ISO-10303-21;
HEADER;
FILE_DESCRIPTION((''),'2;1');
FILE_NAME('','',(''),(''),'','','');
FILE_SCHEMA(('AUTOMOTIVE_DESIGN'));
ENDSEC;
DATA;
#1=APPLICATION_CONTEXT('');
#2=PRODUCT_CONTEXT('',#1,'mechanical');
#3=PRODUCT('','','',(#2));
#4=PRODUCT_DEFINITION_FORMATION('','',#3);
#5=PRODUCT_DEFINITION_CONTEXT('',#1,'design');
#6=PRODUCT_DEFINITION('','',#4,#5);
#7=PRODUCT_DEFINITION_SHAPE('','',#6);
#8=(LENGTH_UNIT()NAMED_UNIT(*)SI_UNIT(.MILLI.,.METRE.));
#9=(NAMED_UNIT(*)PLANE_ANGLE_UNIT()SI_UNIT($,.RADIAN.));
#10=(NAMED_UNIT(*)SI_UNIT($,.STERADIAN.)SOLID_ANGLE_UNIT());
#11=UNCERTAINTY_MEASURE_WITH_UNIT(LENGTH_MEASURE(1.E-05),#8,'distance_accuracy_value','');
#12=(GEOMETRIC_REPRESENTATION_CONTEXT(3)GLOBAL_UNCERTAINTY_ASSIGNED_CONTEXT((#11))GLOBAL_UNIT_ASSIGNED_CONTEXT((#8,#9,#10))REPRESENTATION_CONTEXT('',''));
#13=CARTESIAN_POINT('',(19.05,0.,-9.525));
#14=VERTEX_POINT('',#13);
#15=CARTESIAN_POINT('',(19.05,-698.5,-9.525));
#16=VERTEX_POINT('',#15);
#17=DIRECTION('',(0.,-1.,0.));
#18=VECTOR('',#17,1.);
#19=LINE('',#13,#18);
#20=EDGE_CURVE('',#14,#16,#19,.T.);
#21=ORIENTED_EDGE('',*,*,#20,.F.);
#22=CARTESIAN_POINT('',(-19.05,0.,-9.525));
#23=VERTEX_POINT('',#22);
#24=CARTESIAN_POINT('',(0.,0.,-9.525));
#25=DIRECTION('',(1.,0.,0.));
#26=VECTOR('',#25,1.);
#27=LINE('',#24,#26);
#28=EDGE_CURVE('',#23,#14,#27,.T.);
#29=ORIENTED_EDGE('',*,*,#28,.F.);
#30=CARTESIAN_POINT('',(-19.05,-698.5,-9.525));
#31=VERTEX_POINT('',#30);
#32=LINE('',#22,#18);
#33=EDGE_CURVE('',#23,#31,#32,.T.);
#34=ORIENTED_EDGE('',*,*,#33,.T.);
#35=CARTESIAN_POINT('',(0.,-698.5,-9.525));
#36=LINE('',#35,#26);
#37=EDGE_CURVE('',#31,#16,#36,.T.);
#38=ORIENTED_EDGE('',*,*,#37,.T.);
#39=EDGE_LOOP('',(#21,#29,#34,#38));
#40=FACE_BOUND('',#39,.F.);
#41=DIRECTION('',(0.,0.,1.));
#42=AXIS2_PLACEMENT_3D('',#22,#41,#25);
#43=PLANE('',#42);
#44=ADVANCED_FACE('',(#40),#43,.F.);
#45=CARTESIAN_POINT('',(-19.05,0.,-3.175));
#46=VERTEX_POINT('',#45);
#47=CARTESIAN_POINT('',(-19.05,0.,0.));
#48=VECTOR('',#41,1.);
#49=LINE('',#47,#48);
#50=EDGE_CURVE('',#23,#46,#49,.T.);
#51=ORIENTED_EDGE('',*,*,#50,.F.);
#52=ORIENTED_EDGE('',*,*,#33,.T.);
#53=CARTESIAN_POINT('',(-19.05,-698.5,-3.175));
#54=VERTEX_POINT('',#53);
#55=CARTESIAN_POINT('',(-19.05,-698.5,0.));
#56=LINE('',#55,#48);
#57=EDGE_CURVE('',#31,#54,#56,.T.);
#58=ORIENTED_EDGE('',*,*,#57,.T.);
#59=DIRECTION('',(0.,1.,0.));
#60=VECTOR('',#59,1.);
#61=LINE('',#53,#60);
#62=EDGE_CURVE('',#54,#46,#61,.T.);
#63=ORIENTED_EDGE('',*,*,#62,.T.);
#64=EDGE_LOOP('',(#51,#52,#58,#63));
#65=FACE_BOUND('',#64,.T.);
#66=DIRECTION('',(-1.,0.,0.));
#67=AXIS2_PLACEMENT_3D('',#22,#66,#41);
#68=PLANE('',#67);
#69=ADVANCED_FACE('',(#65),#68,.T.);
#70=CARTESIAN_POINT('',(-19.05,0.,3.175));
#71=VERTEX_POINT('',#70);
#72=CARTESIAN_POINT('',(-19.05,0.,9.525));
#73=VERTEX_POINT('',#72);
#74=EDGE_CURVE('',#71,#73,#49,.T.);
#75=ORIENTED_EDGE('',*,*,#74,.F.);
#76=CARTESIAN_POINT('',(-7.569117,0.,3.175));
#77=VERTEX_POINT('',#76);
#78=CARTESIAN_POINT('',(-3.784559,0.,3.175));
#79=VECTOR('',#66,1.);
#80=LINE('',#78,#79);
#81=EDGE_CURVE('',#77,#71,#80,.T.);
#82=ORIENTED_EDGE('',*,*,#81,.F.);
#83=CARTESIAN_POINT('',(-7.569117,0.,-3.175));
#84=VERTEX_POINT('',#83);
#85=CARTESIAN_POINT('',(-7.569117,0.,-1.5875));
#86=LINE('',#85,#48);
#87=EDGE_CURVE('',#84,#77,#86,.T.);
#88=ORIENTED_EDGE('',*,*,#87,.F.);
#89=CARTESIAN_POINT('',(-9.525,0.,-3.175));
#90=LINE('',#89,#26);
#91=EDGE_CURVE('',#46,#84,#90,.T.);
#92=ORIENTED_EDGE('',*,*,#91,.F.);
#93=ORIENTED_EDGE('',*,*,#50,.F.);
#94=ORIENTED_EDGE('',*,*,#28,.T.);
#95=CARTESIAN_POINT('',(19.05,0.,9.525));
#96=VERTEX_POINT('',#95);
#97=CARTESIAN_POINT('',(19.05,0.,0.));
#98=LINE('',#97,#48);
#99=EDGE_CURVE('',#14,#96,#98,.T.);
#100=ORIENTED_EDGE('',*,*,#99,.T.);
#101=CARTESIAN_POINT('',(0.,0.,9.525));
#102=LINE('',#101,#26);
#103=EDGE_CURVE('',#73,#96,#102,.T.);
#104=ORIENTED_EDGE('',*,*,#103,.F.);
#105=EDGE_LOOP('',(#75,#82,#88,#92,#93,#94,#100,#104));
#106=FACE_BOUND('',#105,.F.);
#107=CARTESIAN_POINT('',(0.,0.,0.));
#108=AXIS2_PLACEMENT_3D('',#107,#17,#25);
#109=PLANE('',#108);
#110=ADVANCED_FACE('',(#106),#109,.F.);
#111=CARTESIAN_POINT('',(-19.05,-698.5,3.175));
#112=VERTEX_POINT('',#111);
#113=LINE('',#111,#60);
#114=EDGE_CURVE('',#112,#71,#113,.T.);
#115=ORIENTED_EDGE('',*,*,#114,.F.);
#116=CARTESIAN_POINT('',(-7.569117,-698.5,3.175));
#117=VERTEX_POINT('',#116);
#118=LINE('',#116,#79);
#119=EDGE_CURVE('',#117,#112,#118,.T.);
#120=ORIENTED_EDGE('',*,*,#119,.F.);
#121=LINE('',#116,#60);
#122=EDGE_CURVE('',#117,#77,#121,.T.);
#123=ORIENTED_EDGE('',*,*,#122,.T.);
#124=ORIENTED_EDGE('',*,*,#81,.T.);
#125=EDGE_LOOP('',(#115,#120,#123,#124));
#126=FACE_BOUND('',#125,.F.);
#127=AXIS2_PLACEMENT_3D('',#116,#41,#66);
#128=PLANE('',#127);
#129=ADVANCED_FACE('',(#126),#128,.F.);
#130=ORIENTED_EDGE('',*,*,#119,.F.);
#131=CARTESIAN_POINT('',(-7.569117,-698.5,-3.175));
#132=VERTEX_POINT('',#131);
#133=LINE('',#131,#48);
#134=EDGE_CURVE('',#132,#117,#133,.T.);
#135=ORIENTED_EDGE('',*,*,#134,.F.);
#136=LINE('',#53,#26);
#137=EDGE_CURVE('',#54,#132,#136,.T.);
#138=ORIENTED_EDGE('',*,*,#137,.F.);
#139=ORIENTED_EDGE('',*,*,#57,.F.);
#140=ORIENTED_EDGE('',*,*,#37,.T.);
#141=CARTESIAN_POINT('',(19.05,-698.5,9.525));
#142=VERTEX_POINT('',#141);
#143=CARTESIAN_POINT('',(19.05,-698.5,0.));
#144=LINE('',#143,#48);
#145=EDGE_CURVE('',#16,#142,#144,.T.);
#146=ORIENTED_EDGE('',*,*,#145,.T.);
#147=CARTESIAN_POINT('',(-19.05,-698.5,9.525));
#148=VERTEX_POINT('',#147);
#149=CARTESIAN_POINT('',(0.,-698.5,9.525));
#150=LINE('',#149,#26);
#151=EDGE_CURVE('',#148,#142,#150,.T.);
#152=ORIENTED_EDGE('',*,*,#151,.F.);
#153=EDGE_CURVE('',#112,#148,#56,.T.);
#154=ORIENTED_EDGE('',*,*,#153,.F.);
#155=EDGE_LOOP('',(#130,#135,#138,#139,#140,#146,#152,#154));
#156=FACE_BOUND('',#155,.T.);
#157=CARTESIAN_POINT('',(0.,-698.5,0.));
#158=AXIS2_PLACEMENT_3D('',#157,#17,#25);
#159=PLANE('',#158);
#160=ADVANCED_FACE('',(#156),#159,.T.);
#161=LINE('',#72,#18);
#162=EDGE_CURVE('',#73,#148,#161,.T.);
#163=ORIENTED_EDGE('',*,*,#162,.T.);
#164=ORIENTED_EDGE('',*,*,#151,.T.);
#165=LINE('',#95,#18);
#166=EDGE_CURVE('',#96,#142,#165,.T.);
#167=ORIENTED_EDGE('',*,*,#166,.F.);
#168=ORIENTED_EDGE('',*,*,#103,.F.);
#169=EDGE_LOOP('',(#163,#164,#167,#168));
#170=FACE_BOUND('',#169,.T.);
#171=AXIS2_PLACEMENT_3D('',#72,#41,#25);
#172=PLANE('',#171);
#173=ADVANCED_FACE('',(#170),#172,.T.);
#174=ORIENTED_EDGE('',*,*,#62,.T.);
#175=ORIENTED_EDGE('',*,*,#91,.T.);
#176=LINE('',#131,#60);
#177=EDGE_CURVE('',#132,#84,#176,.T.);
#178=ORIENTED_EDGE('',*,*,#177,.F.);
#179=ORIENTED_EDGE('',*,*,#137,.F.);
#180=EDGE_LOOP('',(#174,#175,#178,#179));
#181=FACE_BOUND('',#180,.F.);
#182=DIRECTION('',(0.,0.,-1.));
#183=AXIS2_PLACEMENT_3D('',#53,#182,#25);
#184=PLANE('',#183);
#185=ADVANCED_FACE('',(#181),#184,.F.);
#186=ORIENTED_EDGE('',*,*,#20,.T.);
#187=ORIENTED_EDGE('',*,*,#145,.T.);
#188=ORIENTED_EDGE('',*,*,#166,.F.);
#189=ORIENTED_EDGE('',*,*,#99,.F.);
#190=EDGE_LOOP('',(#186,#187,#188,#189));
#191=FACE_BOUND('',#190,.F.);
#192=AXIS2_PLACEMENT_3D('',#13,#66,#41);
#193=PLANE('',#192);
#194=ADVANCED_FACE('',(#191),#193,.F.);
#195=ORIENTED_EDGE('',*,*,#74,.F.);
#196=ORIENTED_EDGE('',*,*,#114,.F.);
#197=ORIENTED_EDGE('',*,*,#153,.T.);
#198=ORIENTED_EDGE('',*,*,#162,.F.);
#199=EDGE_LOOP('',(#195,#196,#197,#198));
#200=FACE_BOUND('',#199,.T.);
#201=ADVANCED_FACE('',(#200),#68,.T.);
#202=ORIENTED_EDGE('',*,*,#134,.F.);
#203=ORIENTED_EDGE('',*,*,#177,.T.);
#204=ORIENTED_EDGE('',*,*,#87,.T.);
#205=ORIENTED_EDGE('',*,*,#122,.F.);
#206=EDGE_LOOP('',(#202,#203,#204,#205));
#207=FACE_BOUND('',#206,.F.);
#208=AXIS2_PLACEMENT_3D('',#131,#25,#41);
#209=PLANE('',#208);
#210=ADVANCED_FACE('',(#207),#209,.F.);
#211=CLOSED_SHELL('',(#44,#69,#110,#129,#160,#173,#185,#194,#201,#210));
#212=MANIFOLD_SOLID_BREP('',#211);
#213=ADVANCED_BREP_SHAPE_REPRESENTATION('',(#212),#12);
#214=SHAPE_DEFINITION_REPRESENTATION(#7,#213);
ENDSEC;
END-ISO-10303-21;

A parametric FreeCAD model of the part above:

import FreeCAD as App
import Part
import Sketcher

V = App.Vector
Q = App.Units.Quantity

doc = App.newDocument("Part")
params = doc.addObject("Spreadsheet::Sheet", "Params")
for row, (alias, value) in enumerate([
    ("sketch1_width", "1.5 in"),
    ("sketch1_height", "0.75 in"),
    ("pad1_length", "27.5 in"),
    ("sketch2_height", "0.25 in"),
], start=1):
    params.set(f"A{row}", alias)
    params.set(f"B{row}", "=" + value)
    params.setAlias(f"B{row}", alias)

body = doc.addObject("PartDesign::Body", "Body")

# Sketch on XZ plane
sketch1 = body.newObject("Sketcher::SketchObject", "Sketch")
sketch1.AttachmentSupport = (doc.getObject("XZ_Plane"), [""])
sketch1.MapMode = "FlatFace"
sketch1.addGeometry(Part.LineSegment(V(-19.05, 9.525, 0), V(-19.05, -9.525, 0)), False)
sketch1.addGeometry(Part.LineSegment(V(-19.05, -9.525, 0), V(19.05, -9.525, 0)), False)
sketch1.addGeometry(Part.LineSegment(V(19.05, -9.525, 0), V(19.05, 9.525, 0)), False)
sketch1.addGeometry(Part.LineSegment(V(19.05, 9.525, 0), V(-19.05, 9.525, 0)), False)
sketch1.addConstraint(Sketcher.Constraint("Coincident", 0, 2, 1, 1))
sketch1.addConstraint(Sketcher.Constraint("Coincident", 1, 2, 2, 1))
sketch1.addConstraint(Sketcher.Constraint("Coincident", 2, 2, 3, 1))
sketch1.addConstraint(Sketcher.Constraint("Coincident", 3, 2, 0, 1))
sketch1.addConstraint(Sketcher.Constraint("Vertical", 0))
sketch1.addConstraint(Sketcher.Constraint("Horizontal", 1))
sketch1.addConstraint(Sketcher.Constraint("Vertical", 2))
sketch1.addConstraint(Sketcher.Constraint("Horizontal", 3))
sketch1.addConstraint(Sketcher.Constraint("Symmetric", 0, 2, 2, 2, -1, 1))
sketch1.addConstraint(Sketcher.Constraint("DistanceX", 1, 1, 1, 2, Q("1.5 in")))
sketch1.addConstraint(Sketcher.Constraint("DistanceY", 0, 2, 0, 1, Q("0.75 in")))
sketch1.setExpression("Constraints[9]", "Params.sketch1_width")
sketch1.setExpression("Constraints[10]", "Params.sketch1_height")
pad1 = body.newObject("PartDesign::Pad", "Pad")
pad1.Profile = sketch1
pad1.setExpression("Length", "Params.pad1_length")

# Sketch on XZ plane
sketch2 = body.newObject("Sketcher::SketchObject", "Sketch001")
sketch2.AttachmentSupport = (doc.getObject("XZ_Plane"), [""])
sketch2.MapMode = "FlatFace"
sketch2.AttachmentOffset = App.Placement(V(0, 0, 27.5 * 25.4), App.Rotation())
sketch2.addGeometry(Part.LineSegment(V(-19.05, -3.175, 0), V(-7.569117, -3.175, 0)), False)
sketch2.addGeometry(Part.LineSegment(V(-7.569117, -3.175, 0), V(-7.569117, 3.175, 0)), False)
sketch2.addGeometry(Part.LineSegment(V(-7.569117, 3.175, 0), V(-19.05, 3.175, 0)), False)
sketch2.addGeometry(Part.LineSegment(V(-19.05, 3.175, 0), V(-19.05, -3.175, 0)), False)
sketch2.addConstraint(Sketcher.Constraint("Coincident", 0, 2, 1, 1))
sketch2.addConstraint(Sketcher.Constraint("Coincident", 1, 2, 2, 1))
sketch2.addConstraint(Sketcher.Constraint("Coincident", 2, 2, 3, 1))
sketch2.addConstraint(Sketcher.Constraint("Coincident", 3, 2, 0, 1))
sketch2.addConstraint(Sketcher.Constraint("Horizontal", 0))
sketch2.addConstraint(Sketcher.Constraint("Vertical", 1))
sketch2.addConstraint(Sketcher.Constraint("Horizontal", 2))
sketch2.addConstraint(Sketcher.Constraint("Vertical", 3))
sketch2.addConstraint(Sketcher.Constraint("DistanceY", 1, 1, 1, 2, Q("0.25 in")))
sketch2.addConstraint(Sketcher.Constraint("DistanceX", 2, 2, -1, 1, Q("0.75 in")))
sketch2.addConstraint(Sketcher.Constraint("DistanceY", 0, 2, -1, 1, Q("0.125 in")))
sketch2.addConstraint(Sketcher.Constraint("DistanceX", 0, 1, 0, 2, Q("11.480883 mm")))
sketch2.setExpression("Constraints[8]", "Params.sketch2_height")
pocket1 = body.newObject("PartDesign::Pocket", "Pocket")
pocket1.Profile = sketch2
pocket1.Type = "ThroughAll"

doc.recompute()
